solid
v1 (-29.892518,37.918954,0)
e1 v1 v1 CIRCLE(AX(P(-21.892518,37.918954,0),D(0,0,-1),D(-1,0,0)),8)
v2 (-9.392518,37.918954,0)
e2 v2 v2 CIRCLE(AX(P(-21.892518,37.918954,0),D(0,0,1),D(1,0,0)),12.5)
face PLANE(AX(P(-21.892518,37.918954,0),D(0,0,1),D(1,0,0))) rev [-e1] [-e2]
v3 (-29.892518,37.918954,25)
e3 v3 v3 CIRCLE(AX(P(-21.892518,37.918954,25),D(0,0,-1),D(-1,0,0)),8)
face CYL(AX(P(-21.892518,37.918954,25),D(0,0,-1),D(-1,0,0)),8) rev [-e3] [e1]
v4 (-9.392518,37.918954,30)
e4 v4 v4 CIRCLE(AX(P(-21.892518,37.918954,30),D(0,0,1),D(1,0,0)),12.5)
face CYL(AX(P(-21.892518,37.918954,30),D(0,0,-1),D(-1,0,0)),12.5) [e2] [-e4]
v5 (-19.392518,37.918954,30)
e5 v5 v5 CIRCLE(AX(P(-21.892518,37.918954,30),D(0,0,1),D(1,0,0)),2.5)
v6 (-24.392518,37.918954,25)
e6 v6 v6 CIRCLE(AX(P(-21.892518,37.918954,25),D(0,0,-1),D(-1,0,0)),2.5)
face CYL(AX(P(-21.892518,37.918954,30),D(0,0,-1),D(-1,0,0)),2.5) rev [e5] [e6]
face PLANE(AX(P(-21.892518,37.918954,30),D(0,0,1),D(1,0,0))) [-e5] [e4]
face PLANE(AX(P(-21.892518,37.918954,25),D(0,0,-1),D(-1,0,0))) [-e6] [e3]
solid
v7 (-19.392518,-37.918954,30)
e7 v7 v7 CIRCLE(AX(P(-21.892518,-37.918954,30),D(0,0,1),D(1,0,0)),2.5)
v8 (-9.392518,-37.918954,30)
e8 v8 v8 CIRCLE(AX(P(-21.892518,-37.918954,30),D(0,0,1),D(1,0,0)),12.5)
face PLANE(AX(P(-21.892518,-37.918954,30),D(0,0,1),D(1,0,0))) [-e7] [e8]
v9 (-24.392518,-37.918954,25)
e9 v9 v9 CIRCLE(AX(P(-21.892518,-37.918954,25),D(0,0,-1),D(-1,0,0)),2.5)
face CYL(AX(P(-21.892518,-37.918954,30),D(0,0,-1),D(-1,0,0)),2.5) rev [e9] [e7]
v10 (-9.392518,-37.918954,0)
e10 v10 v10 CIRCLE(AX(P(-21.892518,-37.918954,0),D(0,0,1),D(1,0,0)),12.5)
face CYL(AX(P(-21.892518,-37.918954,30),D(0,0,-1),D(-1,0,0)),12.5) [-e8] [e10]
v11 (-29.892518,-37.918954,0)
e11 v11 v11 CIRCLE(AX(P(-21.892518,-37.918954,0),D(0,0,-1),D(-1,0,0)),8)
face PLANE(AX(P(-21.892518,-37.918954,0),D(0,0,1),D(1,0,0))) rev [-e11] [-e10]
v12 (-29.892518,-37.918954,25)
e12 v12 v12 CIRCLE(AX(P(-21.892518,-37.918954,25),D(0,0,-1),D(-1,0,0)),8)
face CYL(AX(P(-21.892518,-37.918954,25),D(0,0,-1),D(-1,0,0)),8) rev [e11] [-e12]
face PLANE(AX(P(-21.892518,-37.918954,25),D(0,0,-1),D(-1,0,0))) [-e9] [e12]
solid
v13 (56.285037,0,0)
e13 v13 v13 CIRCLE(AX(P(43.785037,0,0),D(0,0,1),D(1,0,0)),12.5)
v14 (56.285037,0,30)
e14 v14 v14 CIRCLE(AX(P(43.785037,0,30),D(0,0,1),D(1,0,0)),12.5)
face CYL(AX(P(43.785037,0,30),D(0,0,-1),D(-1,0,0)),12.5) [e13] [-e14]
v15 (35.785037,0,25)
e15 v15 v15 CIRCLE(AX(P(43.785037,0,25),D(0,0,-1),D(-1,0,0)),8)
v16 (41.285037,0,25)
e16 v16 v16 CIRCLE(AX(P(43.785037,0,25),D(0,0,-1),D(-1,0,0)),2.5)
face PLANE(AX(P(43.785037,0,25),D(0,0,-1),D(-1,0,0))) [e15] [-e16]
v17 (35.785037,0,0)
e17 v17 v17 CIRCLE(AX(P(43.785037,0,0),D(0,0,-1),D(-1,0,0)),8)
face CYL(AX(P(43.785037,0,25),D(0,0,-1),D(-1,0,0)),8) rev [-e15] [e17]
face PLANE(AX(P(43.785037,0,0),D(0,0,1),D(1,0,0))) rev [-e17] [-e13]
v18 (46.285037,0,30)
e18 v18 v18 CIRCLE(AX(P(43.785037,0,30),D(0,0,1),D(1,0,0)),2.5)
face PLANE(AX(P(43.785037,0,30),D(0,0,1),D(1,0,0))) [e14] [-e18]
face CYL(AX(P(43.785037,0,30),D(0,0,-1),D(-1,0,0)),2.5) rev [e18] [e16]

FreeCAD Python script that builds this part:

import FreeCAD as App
import Part
import Sketcher

doc = App.newDocument("Part")
body = doc.addObject("PartDesign::Body", "Body")

# Sketch on XY plane
sketch1 = doc.addObject("Sketcher::SketchObject", "Sketch")
body.addObject(sketch1)
sketch1.AttachmentSupport = (doc.XY_Plane, [""])
sketch1.MapMode = "FlatFace"
sketch1.addGeometry(Part.Circle(App.Vector(43.8, 0, 0), App.Vector(0, 0, 1), 12.5), False)
sketch1.addGeometry(Part.Circle(App.Vector(43.8, 0, 0), App.Vector(0, 0, 1), 2.5), False)
sketch1.addConstraint(Sketcher.Constraint("Coincident", 1, 3, 0, 3))
sketch1.addConstraint(Sketcher.Constraint("PointOnObject", 0, 3, -1))
sketch1.addConstraint(Sketcher.Constraint("Diameter", 0, 25.0))
sketch1.addConstraint(Sketcher.Constraint("Diameter", 1, 5.0))
sketch1.addConstraint(Sketcher.Constraint("DistanceX", -1, 1, 0, 3, 43.785037))
pad1 = doc.addObject("PartDesign::Pad", "Pad")
body.addObject(pad1)
pad1.Profile = sketch1
pad1.Length = 30
body2 = doc.addObject("PartDesign::Body", "Body001")

# Sketch on XY plane
sketch2 = doc.addObject("Sketcher::SketchObject", "Sketch001")
body2.addObject(sketch2)
sketch2.AttachmentSupport = (doc.getObject("XY_Plane001"), [""])
sketch2.MapMode = "FlatFace"
sketch2.addGeometry(Part.Circle(App.Vector(-21.9, -37.9, 0), App.Vector(0, 0, 1), 12.5), False)
sketch2.addGeometry(Part.Circle(App.Vector(-21.9, -37.9, 0), App.Vector(0, 0, 1), 2.5), False)
sketch2.addConstraint(Sketcher.Constraint("Coincident", 1, 3, 0, 3))
sketch2.addConstraint(Sketcher.Constraint("Diameter", 0, 25.0))
sketch2.addConstraint(Sketcher.Constraint("Diameter", 1, 5.0))
sketch2.addConstraint(Sketcher.Constraint("DistanceX", 0, 3, -1, 1, 21.892518))
sketch2.addConstraint(Sketcher.Constraint("DistanceY", 0, 3, -1, 1, 37.918954))
pad2 = doc.addObject("PartDesign::Pad", "Pad001")
body2.addObject(pad2)
pad2.Profile = sketch2
pad2.Length = 30
body3 = doc.addObject("PartDesign::Body", "Body002")

# Sketch on XY plane
sketch3 = doc.addObject("Sketcher::SketchObject", "Sketch002")
body3.addObject(sketch3)
sketch3.AttachmentSupport = (doc.getObject("XY_Plane002"), [""])
sketch3.MapMode = "FlatFace"
sketch3.addGeometry(Part.Circle(App.Vector(-21.9, 37.9, 0), App.Vector(0, 0, 1), 12.5), False)
sketch3.addGeometry(Part.Circle(App.Vector(-21.9, 37.9, 0), App.Vector(0, 0, 1), 2.5), False)
sketch3.addConstraint(Sketcher.Constraint("Coincident", 1, 3, 0, 3))
sketch3.addConstraint(Sketcher.Constraint("Diameter", 0, 25.0))
sketch3.addConstraint(Sketcher.Constraint("Diameter", 1, 5.0))
sketch3.addConstraint(Sketcher.Constraint("DistanceX", 0, 3, -1, 1, 21.892518))
sketch3.addConstraint(Sketcher.Constraint("DistanceY", -1, 1, 0, 3, 37.918954))
pad3 = doc.addObject("PartDesign::Pad", "Pad002")
body3.addObject(pad3)
pad3.Profile = sketch3
pad3.Length = 30
body4 = doc.addObject("PartDesign::Body", "Body003")
body4.AllowCompound = True

# Sketch on XY plane
sketch4 = doc.addObject("Sketcher::SketchObject", "Sketch003")
body4.addObject(sketch4)
sketch4.AttachmentSupport = (doc.getObject("XY_Plane003"), [""])
sketch4.MapMode = "FlatFace"
sketch4.addGeometry(Part.Circle(App.Vector(-22, -38, 0), App.Vector(0, 0, 1), 8), False)
sketch4.addGeometry(Part.Circle(App.Vector(44, 0, 0), App.Vector(0, 0, 1), 8), False)
sketch4.addGeometry(Part.Circle(App.Vector(-22, 38, 0), App.Vector(0, 0, 1), 8), False)
sketch4.addConstraint(Sketcher.Constraint("Equal", 0, 1))
sketch4.addConstraint(Sketcher.Constraint("Equal", 1, 2))
sketch4.addConstraint(Sketcher.Constraint("Symmetric", 0, 3, 2, 3, -1))
sketch4.addConstraint(Sketcher.Constraint("PointOnObject", 1, 3, -1))
sketch4.addConstraint(Sketcher.Constraint("Diameter", 0, 16.0))
sketch4.addConstraint(Sketcher.Constraint("DistanceX", 0, 3, -1, 1, 21.892518))
sketch4.addConstraint(Sketcher.Constraint("DistanceY", 0, 3, 2, 3, 75.837908))
sketch4.addConstraint(Sketcher.Constraint("DistanceX", -1, 1, 1, 3, 43.785037))
pad4 = doc.addObject("PartDesign::Pad", "Pad003")
body4.addObject(pad4)
pad4.Profile = sketch4
pad4.Length = 25
doc.recompute()

body5 = doc.addObject("PartDesign::Body", "Body004")
body5.BaseFeature = body4
boolean = doc.addObject("PartDesign::Boolean", "Boolean")
body.addObject(boolean)
boolean.Type = "Cut"
boolean.addObjects([body5])
doc.recompute()

body6 = doc.addObject("PartDesign::Body", "Body005")
body6.BaseFeature = body4
boolean2 = doc.addObject("PartDesign::Boolean", "Boolean001")
body2.addObject(boolean2)
boolean2.Type = "Cut"
boolean2.addObjects([body6])
doc.recompute()

boolean3 = doc.addObject("PartDesign::Boolean", "Boolean002")
body3.addObject(boolean3)
boolean3.Type = "Cut"
boolean3.addObjects([body4])

doc.recompute()
